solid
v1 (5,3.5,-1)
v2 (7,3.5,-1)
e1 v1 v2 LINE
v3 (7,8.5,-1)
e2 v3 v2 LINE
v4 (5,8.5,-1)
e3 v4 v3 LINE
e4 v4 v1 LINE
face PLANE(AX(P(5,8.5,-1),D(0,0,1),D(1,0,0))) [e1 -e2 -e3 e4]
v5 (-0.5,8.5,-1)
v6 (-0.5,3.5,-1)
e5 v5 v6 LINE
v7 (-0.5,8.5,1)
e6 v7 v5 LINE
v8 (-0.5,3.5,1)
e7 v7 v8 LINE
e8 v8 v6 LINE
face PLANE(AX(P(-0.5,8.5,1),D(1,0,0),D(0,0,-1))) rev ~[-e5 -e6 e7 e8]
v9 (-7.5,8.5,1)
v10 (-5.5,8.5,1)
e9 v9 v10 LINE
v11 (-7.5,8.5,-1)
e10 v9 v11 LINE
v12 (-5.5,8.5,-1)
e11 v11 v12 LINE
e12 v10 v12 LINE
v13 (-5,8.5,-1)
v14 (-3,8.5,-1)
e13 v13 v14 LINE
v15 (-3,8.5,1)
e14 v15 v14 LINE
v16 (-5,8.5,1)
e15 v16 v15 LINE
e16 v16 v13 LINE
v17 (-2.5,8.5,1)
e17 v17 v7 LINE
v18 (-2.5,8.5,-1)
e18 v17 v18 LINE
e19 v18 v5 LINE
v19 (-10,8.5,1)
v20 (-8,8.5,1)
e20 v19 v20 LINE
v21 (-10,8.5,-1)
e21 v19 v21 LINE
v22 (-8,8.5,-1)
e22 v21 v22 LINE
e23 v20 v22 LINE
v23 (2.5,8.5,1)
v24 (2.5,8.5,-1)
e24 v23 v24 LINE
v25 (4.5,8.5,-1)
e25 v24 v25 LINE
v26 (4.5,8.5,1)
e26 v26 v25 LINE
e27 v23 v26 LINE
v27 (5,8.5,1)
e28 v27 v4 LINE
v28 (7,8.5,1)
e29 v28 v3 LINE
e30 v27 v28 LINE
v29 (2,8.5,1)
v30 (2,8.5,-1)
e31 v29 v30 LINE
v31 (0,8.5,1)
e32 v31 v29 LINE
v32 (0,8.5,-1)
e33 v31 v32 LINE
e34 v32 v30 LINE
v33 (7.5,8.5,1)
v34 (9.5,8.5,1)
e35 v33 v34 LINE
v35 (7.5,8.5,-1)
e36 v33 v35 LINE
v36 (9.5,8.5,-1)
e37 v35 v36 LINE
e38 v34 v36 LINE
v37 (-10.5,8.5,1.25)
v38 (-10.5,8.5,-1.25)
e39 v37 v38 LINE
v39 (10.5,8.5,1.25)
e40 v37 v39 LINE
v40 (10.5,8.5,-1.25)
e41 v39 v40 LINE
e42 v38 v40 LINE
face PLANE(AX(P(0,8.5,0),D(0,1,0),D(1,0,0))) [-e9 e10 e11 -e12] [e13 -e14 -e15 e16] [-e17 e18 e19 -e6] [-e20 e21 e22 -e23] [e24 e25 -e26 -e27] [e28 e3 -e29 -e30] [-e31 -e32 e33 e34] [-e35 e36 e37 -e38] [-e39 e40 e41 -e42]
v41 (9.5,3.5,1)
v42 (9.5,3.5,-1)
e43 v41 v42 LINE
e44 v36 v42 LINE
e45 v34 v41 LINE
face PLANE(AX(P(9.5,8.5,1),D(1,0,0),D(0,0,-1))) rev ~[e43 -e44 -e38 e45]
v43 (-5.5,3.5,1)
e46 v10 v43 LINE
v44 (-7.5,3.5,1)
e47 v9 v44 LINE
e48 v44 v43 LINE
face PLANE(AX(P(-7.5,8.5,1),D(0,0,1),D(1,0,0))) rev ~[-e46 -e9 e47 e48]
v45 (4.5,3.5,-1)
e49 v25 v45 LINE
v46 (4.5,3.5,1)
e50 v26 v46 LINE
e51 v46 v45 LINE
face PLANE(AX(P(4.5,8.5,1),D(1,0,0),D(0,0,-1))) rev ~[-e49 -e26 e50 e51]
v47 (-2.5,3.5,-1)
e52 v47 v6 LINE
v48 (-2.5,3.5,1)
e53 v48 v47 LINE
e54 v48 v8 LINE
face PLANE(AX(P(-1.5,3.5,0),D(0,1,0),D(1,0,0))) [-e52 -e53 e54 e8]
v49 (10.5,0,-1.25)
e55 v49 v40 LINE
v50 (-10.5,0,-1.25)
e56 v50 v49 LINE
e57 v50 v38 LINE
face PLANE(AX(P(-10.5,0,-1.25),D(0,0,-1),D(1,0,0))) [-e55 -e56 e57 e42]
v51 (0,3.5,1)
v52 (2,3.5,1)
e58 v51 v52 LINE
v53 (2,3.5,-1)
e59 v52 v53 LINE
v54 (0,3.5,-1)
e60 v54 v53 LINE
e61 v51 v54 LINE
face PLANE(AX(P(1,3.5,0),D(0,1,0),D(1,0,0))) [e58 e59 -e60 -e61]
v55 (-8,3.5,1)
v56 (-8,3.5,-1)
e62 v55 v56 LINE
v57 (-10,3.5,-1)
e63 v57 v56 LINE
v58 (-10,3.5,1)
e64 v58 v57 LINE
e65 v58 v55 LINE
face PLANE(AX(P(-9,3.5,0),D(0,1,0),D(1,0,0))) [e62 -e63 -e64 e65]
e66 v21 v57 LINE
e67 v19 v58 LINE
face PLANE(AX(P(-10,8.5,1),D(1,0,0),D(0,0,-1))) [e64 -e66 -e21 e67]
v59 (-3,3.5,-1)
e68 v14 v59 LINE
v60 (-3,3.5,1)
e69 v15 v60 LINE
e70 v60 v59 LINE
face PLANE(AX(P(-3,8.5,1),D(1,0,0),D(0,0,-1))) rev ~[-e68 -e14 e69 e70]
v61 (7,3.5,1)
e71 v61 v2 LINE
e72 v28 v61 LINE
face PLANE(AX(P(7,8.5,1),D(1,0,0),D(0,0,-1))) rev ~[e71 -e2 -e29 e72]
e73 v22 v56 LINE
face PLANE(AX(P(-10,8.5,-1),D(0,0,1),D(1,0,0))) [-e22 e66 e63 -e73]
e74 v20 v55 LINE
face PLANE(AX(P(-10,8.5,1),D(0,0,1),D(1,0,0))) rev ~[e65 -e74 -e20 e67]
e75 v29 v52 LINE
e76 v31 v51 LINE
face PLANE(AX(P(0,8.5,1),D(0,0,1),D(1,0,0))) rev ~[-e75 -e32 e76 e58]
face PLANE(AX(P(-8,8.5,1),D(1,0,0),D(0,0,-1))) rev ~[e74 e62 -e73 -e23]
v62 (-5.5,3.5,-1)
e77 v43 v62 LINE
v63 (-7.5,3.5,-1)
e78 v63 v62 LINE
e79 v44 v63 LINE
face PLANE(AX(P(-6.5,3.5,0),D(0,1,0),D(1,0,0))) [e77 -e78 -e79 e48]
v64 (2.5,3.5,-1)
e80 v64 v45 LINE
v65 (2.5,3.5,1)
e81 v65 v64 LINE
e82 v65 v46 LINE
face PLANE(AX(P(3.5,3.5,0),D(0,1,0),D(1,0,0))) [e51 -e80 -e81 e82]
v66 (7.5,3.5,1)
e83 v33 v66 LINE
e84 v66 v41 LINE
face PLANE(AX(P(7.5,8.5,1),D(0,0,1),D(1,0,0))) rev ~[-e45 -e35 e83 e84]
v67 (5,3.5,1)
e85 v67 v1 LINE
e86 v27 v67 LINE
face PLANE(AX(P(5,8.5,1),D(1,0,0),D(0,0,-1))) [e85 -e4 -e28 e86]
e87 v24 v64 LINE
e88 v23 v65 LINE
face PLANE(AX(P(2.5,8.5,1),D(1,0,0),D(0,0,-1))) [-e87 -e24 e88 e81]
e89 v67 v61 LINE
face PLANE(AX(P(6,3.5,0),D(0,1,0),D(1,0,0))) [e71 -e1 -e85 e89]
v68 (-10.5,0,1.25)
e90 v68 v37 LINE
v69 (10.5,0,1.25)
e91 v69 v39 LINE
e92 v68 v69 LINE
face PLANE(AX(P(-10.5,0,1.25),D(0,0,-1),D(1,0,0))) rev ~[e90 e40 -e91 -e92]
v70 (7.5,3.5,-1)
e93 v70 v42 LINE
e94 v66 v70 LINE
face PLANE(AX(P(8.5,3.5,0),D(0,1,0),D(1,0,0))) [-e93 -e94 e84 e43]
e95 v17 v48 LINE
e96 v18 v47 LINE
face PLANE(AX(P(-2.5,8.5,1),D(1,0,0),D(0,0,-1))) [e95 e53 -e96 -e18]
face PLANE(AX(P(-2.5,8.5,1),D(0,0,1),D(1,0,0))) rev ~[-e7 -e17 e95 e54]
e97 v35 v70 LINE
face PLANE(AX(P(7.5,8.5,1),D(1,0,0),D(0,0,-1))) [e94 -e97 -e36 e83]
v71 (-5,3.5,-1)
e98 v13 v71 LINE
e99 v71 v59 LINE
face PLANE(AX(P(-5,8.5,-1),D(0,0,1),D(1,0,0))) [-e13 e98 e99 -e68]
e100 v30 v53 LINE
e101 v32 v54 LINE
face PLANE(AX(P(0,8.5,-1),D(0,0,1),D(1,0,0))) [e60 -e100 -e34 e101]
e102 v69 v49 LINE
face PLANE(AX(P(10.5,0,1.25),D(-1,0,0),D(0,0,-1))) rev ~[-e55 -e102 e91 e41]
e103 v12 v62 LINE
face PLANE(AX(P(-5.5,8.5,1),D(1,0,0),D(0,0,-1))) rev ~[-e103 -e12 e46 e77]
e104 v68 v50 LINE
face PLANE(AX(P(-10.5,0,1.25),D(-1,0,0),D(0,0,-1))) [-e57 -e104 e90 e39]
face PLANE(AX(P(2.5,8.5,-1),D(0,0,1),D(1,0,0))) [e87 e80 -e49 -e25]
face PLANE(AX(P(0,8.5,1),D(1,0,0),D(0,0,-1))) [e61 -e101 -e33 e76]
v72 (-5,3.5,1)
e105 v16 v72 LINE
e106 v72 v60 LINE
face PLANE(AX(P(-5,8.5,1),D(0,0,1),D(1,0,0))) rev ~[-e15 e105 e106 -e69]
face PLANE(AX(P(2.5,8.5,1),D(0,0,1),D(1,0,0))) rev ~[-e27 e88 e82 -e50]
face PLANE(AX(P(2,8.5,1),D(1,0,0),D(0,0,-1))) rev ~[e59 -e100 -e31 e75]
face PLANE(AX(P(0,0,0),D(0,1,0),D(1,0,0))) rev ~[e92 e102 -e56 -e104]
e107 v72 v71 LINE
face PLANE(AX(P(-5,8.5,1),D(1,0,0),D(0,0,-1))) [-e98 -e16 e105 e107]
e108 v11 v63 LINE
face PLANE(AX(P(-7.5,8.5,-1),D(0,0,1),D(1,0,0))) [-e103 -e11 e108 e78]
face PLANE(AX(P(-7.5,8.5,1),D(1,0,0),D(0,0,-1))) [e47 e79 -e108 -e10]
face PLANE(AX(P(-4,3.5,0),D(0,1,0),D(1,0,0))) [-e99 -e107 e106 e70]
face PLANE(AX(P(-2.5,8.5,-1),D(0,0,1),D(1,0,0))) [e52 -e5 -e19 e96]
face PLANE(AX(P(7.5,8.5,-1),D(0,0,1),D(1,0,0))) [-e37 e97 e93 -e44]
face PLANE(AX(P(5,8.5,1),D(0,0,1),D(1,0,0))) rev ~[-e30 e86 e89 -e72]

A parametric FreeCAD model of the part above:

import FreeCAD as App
import Part
import Sketcher
from FreeCAD import Vector
Q = App.Units.Quantity

doc = App.newDocument("Part")
params = doc.addObject("Spreadsheet::Sheet", "Params")
for row, (alias, value) in enumerate([
    ("sketch1_width", "21 mm"),
    ("sketch1_height", "2.5 mm"),
    ("pad1_length", "8.5 mm"),
    ("sketch2_width", "2 mm"),
    ("pocket1_length", "5 mm"),
], start=1):
    params.set(f"A{row}", alias)
    params.set(f"B{row}", "=" + value)
    params.setAlias(f"B{row}", alias)

body = doc.addObject("PartDesign::Body", "Body")

# Sketch on XZ plane
sketch1 = doc.addObject("Sketcher::SketchObject", "Sketch")
body.addObject(sketch1)
sketch1.AttachmentSupport = (doc.XZ_Plane, [""])
sketch1.MapMode = "FlatFace"
sketch1.addGeometry([
    Part.LineSegment(Vector(-10.5, -1.2, 0), Vector(-10.5, 1.2, 0)),
    Part.LineSegment(Vector(-10.5, 1.2, 0), Vector(10.5, 1.2, 0)),
    Part.LineSegment(Vector(10.5, 1.2, 0), Vector(10.5, -1.2, 0)),
    Part.LineSegment(Vector(10.5, -1.2, 0), Vector(-10.5, -1.2, 0)),
], False)
sketch1.addConstraint([
    Sketcher.Constraint("Coincident", 0, 2, 1, 1),
    Sketcher.Constraint("Coincident", 1, 2, 2, 1),
    Sketcher.Constraint("Coincident", 2, 2, 3, 1),
    Sketcher.Constraint("Coincident", 3, 2, 0, 1),
    Sketcher.Constraint("Vertical", 0),
    Sketcher.Constraint("Horizontal", 1),
    Sketcher.Constraint("Vertical", 2),
    Sketcher.Constraint("Horizontal", 3),
    Sketcher.Constraint("Symmetric", 0, 2, 2, 2, -1, 1),
    Sketcher.Constraint("DistanceX", 1, 1, 1, 2, Q("21 mm")),
    Sketcher.Constraint("DistanceY", 0, 1, 0, 2, Q("2.5 mm")),
])
sketch1.setExpression("Constraints[9]", "Params.sketch1_width")
sketch1.setExpression("Constraints[10]", "Params.sketch1_height")
pad1 = doc.addObject("PartDesign::Pad", "Pad")
body.addObject(pad1)
pad1.Profile = sketch1
pad1.setExpression("Length", "Params.pad1_length")
pad1.Reversed = True

# Sketch on XZ plane
sketch2 = doc.addObject("Sketcher::SketchObject", "Sketch001")
body.addObject(sketch2)
sketch2.AttachmentSupport = (doc.XZ_Plane, [""])
sketch2.MapMode = "FlatFace"
sketch2.AttachmentOffset = App.Placement(Vector(0, 0, -8.5), App.Rotation())
sketch2.addGeometry([
    Part.LineSegment(Vector(-7.5, -1, 0), Vector(-7.5, 1, 0)),  # 0
    Part.LineSegment(Vector(-7.5, 1, 0), Vector(-5.5, 1, 0)),  # 1
    Part.LineSegment(Vector(-5.5, 1, 0), Vector(-5.5, -1, 0)),  # 2
    Part.LineSegment(Vector(-5.5, -1, 0), Vector(-7.5, -1, 0)),  # 3
    Part.LineSegment(Vector(-10, -1, 0), Vector(-10, 1, 0)),  # 4
    Part.LineSegment(Vector(-10, 1, 0), Vector(-8, 1, 0)),  # 5
    Part.LineSegment(Vector(-8, 1, 0), Vector(-8, -1, 0)),  # 6
    Part.LineSegment(Vector(-8, -1, 0), Vector(-10, -1, 0)),  # 7
    Part.LineSegment(Vector(-5, -1, 0), Vector(-5, 1, 0)),  # 8
    Part.LineSegment(Vector(-5, 1, 0), Vector(-3, 1, 0)),  # 9
    Part.LineSegment(Vector(-3, 1, 0), Vector(-3, -1, 0)),  # 10
    Part.LineSegment(Vector(-3, -1, 0), Vector(-5, -1, 0)),  # 11
    Part.LineSegment(Vector(-2.5, -1, 0), Vector(-2.5, 1, 0)),  # 12
    Part.LineSegment(Vector(-2.5, 1, 0), Vector(-0.5, 1, 0)),  # 13
    Part.LineSegment(Vector(-0.5, 1, 0), Vector(-0.5, -1, 0)),  # 14
    Part.LineSegment(Vector(-0.5, -1, 0), Vector(-2.5, -1, 0)),  # 15
    Part.LineSegment(Vector(0, -1, 0), Vector(0, 1, 0)),  # 16
    Part.LineSegment(Vector(0, 1, 0), Vector(2, 1, 0)),  # 17
    Part.LineSegment(Vector(2, 1, 0), Vector(2, -1, 0)),  # 18
    Part.LineSegment(Vector(2, -1, 0), Vector(0, -1, 0)),  # 19
    Part.LineSegment(Vector(2.5, -1, 0), Vector(2.5, 1, 0)),  # 20
    Part.LineSegment(Vector(2.5, 1, 0), Vector(4.5, 1, 0)),  # 21
    Part.LineSegment(Vector(4.5, 1, 0), Vector(4.5, -1, 0)),  # 22
    Part.LineSegment(Vector(4.5, -1, 0), Vector(2.5, -1, 0)),  # 23
    Part.LineSegment(Vector(5, -1, 0), Vector(5, 1, 0)),  # 24
    Part.LineSegment(Vector(5, 1, 0), Vector(7, 1, 0)),  # 25
    Part.LineSegment(Vector(7, 1, 0), Vector(7, -1, 0)),  # 26
    Part.LineSegment(Vector(7, -1, 0), Vector(5, -1, 0)),  # 27
    Part.LineSegment(Vector(7.5, -1, 0), Vector(7.5, 1, 0)),  # 28
    Part.LineSegment(Vector(7.5, 1, 0), Vector(9.5, 1, 0)),  # 29
    Part.LineSegment(Vector(9.5, 1, 0), Vector(9.5, -1, 0)),  # 30
    Part.LineSegment(Vector(9.5, -1, 0), Vector(7.5, -1, 0)),  # 31
], False)
sketch2.addConstraint([
    Sketcher.Constraint("Coincident", 0, 2, 1, 1),
    Sketcher.Constraint("Coincident", 1, 2, 2, 1),
    Sketcher.Constraint("Coincident", 2, 2, 3, 1),
    Sketcher.Constraint("Coincident", 3, 2, 0, 1),
    Sketcher.Constraint("Coincident", 4, 2, 5, 1),
    Sketcher.Constraint("Coincident", 5, 2, 6, 1),
    Sketcher.Constraint("Coincident", 6, 2, 7, 1),
    Sketcher.Constraint("Coincident", 7, 2, 4, 1),
    Sketcher.Constraint("Coincident", 8, 2, 9, 1),
    Sketcher.Constraint("Coincident", 9, 2, 10, 1),
    Sketcher.Constraint("Coincident", 10, 2, 11, 1),
    Sketcher.Constraint("Coincident", 11, 2, 8, 1),
    Sketcher.Constraint("Coincident", 12, 2, 13, 1),
    Sketcher.Constraint("Coincident", 13, 2, 14, 1),
    Sketcher.Constraint("Coincident", 14, 2, 15, 1),
    Sketcher.Constraint("Coincident", 15, 2, 12, 1),
    Sketcher.Constraint("Coincident", 16, 2, 17, 1),
    Sketcher.Constraint("Coincident", 17, 2, 18, 1),
    Sketcher.Constraint("Coincident", 18, 2, 19, 1),
    Sketcher.Constraint("Coincident", 19, 2, 16, 1),
    Sketcher.Constraint("Coincident", 20, 2, 21, 1),
    Sketcher.Constraint("Coincident", 21, 2, 22, 1),
    Sketcher.Constraint("Coincident", 22, 2, 23, 1),
    Sketcher.Constraint("Coincident", 23, 2, 20, 1),
    Sketcher.Constraint("Coincident", 24, 2, 25, 1),
    Sketcher.Constraint("Coincident", 25, 2, 26, 1),
    Sketcher.Constraint("Coincident", 26, 2, 27, 1),
    Sketcher.Constraint("Coincident", 27, 2, 24, 1),
    Sketcher.Constraint("Coincident", 28, 2, 29, 1),
    Sketcher.Constraint("Coincident", 29, 2, 30, 1),
    Sketcher.Constraint("Coincident", 30, 2, 31, 1),
    Sketcher.Constraint("Coincident", 31, 2, 28, 1),
    Sketcher.Constraint("Vertical", 0),
    Sketcher.Constraint("Horizontal", 1),
    Sketcher.Constraint("Vertical", 2),
    Sketcher.Constraint("Horizontal", 3),
    Sketcher.Constraint("Vertical", 4),
    Sketcher.Constraint("Horizontal", 5),
    Sketcher.Constraint("Vertical", 6),
    Sketcher.Constraint("Horizontal", 7),
    Sketcher.Constraint("Vertical", 8),
    Sketcher.Constraint("Horizontal", 9),
    Sketcher.Constraint("Vertical", 10),
    Sketcher.Constraint("Horizontal", 11),
    Sketcher.Constraint("Vertical", 12),
    Sketcher.Constraint("Horizontal", 13),
    Sketcher.Constraint("Vertical", 14),
    Sketcher.Constraint("Horizontal", 15),
    Sketcher.Constraint("Vertical", 16),
    Sketcher.Constraint("Horizontal", 17),
    Sketcher.Constraint("Vertical", 18),
    Sketcher.Constraint("Horizontal", 19),
    Sketcher.Constraint("Vertical", 20),
    Sketcher.Constraint("Horizontal", 21),
    Sketcher.Constraint("Vertical", 22),
    Sketcher.Constraint("Horizontal", 23),
    Sketcher.Constraint("Vertical", 24),
    Sketcher.Constraint("Horizontal", 25),
    Sketcher.Constraint("Vertical", 26),
    Sketcher.Constraint("Horizontal", 27),
    Sketcher.Constraint("Vertical", 28),
    Sketcher.Constraint("Horizontal", 29),
    Sketcher.Constraint("Vertical", 30),
    Sketcher.Constraint("Horizontal", 31),
    Sketcher.Constraint("Symmetric", 16, 2, 19, 2, -1, 1),
    Sketcher.Constraint("Symmetric", 15, 2, 20, 2, -1, 1),
    Sketcher.Constraint("Symmetric", 11, 2, 24, 2, -1, 1),
    Sketcher.Constraint("Symmetric", 3, 2, 28, 2, -1, 1),
    Sketcher.Constraint("Horizontal", 1, 2, 4, 2),
    Sketcher.Constraint("Horizontal", 3, 2, 6, 2),
    Sketcher.Constraint("Horizontal", 5, 2, 8, 2),
    Sketcher.Constraint("Horizontal", 7, 2, 10, 2),
    Sketcher.Constraint("Horizontal", 9, 2, 12, 2),
    Sketcher.Constraint("Horizontal", 11, 2, 14, 2),
    Sketcher.Constraint("Horizontal", 13, 2, 16, 2),
    Sketcher.Constraint("Horizontal", 15, 2, 18, 2),
    Sketcher.Constraint("Horizontal", 19, 2, 22, 2),
    Sketcher.Constraint("Horizontal", 23, 2, 26, 2),
    Sketcher.Constraint("Horizontal", 27, 2, 30, 2),
    Sketcher.Constraint("Equal", 3, 5),
    Sketcher.Constraint("Equal", 7, 9),
    Sketcher.Constraint("Equal", 11, 13),
    Sketcher.Constraint("Equal", 15, 17),
    Sketcher.Constraint("Equal", 19, 21),
    Sketcher.Constraint("Equal", 23, 25),
    Sketcher.Constraint("Equal", 27, 29),
    Sketcher.Constraint("Equal", 31, 0),
    Sketcher.Constraint("DistanceX", 1, 1, 1, 2, Q("2 mm")),
    Sketcher.Constraint("DistanceX", 4, 2, -1, 1, Q("10 mm")),
    Sketcher.Constraint("DistanceX", 8, 2, -1, 1, Q("5 mm")),
    Sketcher.Constraint("DistanceX", 1, 2, 12, 2, Q("3 mm")),
    Sketcher.Constraint("DistanceX", 13, 2, 20, 2, Q("3 mm")),
])
sketch2.setExpression("Constraints[87]", "Params.sketch2_width")
pocket1 = doc.addObject("PartDesign::Pocket", "Pocket")
body.addObject(pocket1)
pocket1.Profile = sketch2
pocket1.setExpression("Length", "Params.pocket1_length")
pocket1.Reversed = True

doc.recompute()
